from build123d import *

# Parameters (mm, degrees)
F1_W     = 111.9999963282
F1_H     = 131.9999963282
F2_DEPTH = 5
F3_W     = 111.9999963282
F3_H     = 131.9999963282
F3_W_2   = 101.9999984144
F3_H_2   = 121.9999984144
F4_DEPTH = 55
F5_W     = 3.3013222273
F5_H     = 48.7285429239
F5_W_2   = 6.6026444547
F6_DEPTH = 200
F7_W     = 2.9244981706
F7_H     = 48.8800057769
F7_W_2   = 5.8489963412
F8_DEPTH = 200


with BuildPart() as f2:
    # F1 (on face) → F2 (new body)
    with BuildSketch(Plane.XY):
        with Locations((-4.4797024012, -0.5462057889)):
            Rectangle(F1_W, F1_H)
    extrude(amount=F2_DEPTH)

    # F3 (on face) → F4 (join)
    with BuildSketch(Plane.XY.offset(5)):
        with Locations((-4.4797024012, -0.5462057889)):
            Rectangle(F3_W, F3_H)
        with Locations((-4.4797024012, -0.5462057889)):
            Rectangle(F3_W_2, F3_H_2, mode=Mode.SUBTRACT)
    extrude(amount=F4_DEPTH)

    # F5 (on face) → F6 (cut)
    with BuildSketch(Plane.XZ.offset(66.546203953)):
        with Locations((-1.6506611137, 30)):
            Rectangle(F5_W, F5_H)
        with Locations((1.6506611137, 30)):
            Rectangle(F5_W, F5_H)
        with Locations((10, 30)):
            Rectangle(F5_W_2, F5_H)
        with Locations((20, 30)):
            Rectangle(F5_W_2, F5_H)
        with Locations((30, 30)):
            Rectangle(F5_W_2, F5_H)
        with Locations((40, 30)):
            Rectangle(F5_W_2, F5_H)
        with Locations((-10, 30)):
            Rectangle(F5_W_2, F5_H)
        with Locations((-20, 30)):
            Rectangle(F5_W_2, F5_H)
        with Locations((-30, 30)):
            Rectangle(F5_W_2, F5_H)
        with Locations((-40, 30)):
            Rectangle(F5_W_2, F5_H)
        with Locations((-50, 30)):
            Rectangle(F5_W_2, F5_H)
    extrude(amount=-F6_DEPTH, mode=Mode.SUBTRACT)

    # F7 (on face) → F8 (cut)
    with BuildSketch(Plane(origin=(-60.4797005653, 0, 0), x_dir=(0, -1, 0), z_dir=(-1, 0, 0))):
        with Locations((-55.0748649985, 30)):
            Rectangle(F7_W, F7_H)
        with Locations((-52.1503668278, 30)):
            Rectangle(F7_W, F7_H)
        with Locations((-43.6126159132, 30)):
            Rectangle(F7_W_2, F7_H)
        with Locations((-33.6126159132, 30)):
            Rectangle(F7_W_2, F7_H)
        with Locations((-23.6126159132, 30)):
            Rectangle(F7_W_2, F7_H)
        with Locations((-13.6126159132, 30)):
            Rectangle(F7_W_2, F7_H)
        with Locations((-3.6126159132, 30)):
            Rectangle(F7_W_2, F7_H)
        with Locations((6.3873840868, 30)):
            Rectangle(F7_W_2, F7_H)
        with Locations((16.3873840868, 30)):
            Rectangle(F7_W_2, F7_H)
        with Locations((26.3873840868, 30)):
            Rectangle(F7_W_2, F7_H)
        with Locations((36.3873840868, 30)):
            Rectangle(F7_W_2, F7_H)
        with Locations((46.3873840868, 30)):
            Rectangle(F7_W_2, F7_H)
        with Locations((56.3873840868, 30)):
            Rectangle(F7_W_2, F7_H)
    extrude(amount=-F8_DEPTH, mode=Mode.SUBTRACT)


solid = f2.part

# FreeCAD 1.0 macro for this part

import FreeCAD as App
import Part
import Sketcher


def add_polygon(sketch, points):
    """Adds a closed chain of lines whose ends are joined by coincident constraints."""
    first, n = sketch.GeometryCount, len(points)
    for a, b in zip(points, points[1:] + points[:1]):
        sketch.addGeometry(Part.LineSegment(App.Vector(*a, 0), App.Vector(*b, 0)), False)
    for i in range(n):
        sketch.addConstraint(Sketcher.Constraint("Coincident", first + i, 2, first + (i + 1) % n, 1))

doc = App.newDocument("Part")
body = doc.addObject("PartDesign::Body", "Body")

# Sketch on XY plane
sketch1 = doc.addObject("Sketcher::SketchObject", "Sketch")
body.addObject(sketch1)
sketch1.AttachmentSupport = (doc.XY_Plane, [""])
sketch1.MapMode = "FlatFace"
add_polygon(sketch1, [(-60, 65), (-60, -67), (52, -67), (52, 65)])  # lines 0-3
sketch1.addConstraint([
    Sketcher.Constraint("Vertical", 0),
    Sketcher.Constraint("Horizontal", 1),
    Sketcher.Constraint("Vertical", 2),
    Sketcher.Constraint("Horizontal", 3),
    Sketcher.Constraint("DistanceX", 0, 2, -1, 1, 60.479701),
    Sketcher.Constraint("DistanceX", 1, 1, 1, 2, 111.999996),
    Sketcher.Constraint("DistanceY", 0, 2, 0, 1, 131.999996),
    Sketcher.Constraint("DistanceY", 0, 2, -1, 1, 66.546204),
])
pad1 = doc.addObject("PartDesign::Pad", "Pad")
body.addObject(pad1)
pad1.Profile = sketch1
pad1.Length = 5

# Sketch on XY plane
sketch2 = doc.addObject("Sketcher::SketchObject", "Sketch001")
body.addObject(sketch2)
sketch2.AttachmentSupport = (doc.XY_Plane, [""])
sketch2.MapMode = "FlatFace"
sketch2.AttachmentOffset = App.Placement(App.Vector(0, 0, 5), App.Rotation())
add_polygon(sketch2, [(-60, 65), (-60, -67), (52, -67), (52, 65)])  # lines 0-3
add_polygon(sketch2, [(47, -62), (-55, -62), (-55, 60), (47, 60)])  # lines 4-7
sketch2.addConstraint([
    Sketcher.Constraint("Vertical", 0),
    Sketcher.Constraint("Horizontal", 1),
    Sketcher.Constraint("Vertical", 2),
    Sketcher.Constraint("Horizontal", 3),
    Sketcher.Constraint("Horizontal", 4),
    Sketcher.Constraint("Vertical", 5),
    Sketcher.Constraint("Horizontal", 6),
    Sketcher.Constraint("Vertical", 7),
    Sketcher.Constraint("DistanceX", 4, 2, 4, 1, 101.999998),
    Sketcher.Constraint("DistanceY", 5, 1, 5, 2, 121.999998),
    Sketcher.Constraint("DistanceX", 0, 2, 4, 2, 4.999999),
    Sketcher.Constraint("DistanceY", 0, 2, 4, 2, 4.999999),
    Sketcher.Constraint("DistanceY", 5, 2, 3, 2, 4.999999),
    Sketcher.Constraint("DistanceX", 6, 2, 2, 2, 4.999999),
    Sketcher.Constraint("DistanceX", 0, 2, -1, 1, 60.479701),
    Sketcher.Constraint("DistanceY", 0, 2, -1, 1, 66.546204),
])
pad2 = doc.addObject("PartDesign::Pad", "Pad001")
body.addObject(pad2)
pad2.Profile = sketch2
pad2.Length = 55

# Sketch on XZ plane
sketch3 = doc.addObject("Sketcher::SketchObject", "Sketch002")
body.addObject(sketch3)
sketch3.AttachmentSupport = (doc.XZ_Plane, [""])
sketch3.MapMode = "FlatFace"
sketch3.AttachmentOffset = App.Placement(App.Vector(0, 0, 66.546204), App.Rotation())
add_polygon(sketch3, [(-3, 54), (-3, 6), (3, 6), (3, 54)])  # lines 0-3
add_polygon(sketch3, [(7, 54), (7, 6), (13, 6), (13, 54)])  # lines 4-7
add_polygon(sketch3, [(17, 54), (17, 6), (23, 6), (23, 54)])  # lines 8-11
add_polygon(sketch3, [(27, 54), (27, 6), (33, 6), (33, 54)])  # lines 12-15
add_polygon(sketch3, [(37, 54), (37, 6), (43, 6), (43, 54)])  # lines 16-19
add_polygon(sketch3, [(-13, 54), (-13, 6), (-7, 6), (-7, 54)])  # lines 20-23
add_polygon(sketch3, [(-23, 54), (-23, 6), (-17, 6), (-17, 54)])  # lines 24-27
add_polygon(sketch3, [(-33, 54), (-33, 6), (-27, 6), (-27, 54)])  # lines 28-31
add_polygon(sketch3, [(-43, 54), (-43, 6), (-37, 6), (-37, 54)])  # lines 32-35
add_polygon(sketch3, [(-53, 54), (-53, 6), (-47, 6), (-47, 54)])  # lines 36-39
sketch3.addConstraint([
    Sketcher.Constraint("Vertical", 0),
    Sketcher.Constraint("Horizontal", 1),
    Sketcher.Constraint("Vertical", 2),
    Sketcher.Constraint("Horizontal", 3),
    Sketcher.Constraint("Vertical", 4),
    Sketcher.Constraint("Horizontal", 5),
    Sketcher.Constraint("Vertical", 6),
    Sketcher.Constraint("Horizontal", 7),
    Sketcher.Constraint("Vertical", 8),
    Sketcher.Constraint("Horizontal", 9),
    Sketcher.Constraint("Vertical", 10),
    Sketcher.Constraint("Horizontal", 11),
    Sketcher.Constraint("Vertical", 12),
    Sketcher.Constraint("Horizontal", 13),
    Sketcher.Constraint("Vertical", 14),
    Sketcher.Constraint("Horizontal", 15),
    Sketcher.Constraint("Vertical", 16),
    Sketcher.Constraint("Horizontal", 17),
    Sketcher.Constraint("Vertical", 18),
    Sketcher.Constraint("Horizontal", 19),
    Sketcher.Constraint("Vertical", 20),
    Sketcher.Constraint("Horizontal", 21),
    Sketcher.Constraint("Vertical", 22),
    Sketcher.Constraint("Horizontal", 23),
    Sketcher.Constraint("Vertical", 24),
    Sketcher.Constraint("Horizontal", 25),
    Sketcher.Constraint("Vertical", 26),
    Sketcher.Constraint("Horizontal", 27),
    Sketcher.Constraint("Vertical", 28),
    Sketcher.Constraint("Horizontal", 29),
    Sketcher.Constraint("Vertical", 30),
    Sketcher.Constraint("Horizontal", 31),
    Sketcher.Constraint("Vertical", 32),
    Sketcher.Constraint("Horizontal", 33),
    Sketcher.Constraint("Vertical", 34),
    Sketcher.Constraint("Horizontal", 35),
    Sketcher.Constraint("Vertical", 36),
    Sketcher.Constraint("Horizontal", 37),
    Sketcher.Constraint("Vertical", 38),
    Sketcher.Constraint("Horizontal", 39),
    Sketcher.Constraint("Symmetric", 5, 2, 20, 2, -2),
    Sketcher.Constraint("Symmetric", 7, 2, 22, 2, -2),
    Sketcher.Constraint("Symmetric", 9, 2, 24, 2, -2),
    Sketcher.Constraint("Symmetric", 11, 2, 26, 2, -2),
    Sketcher.Constraint("Symmetric", 13, 2, 28, 2, -2),
    Sketcher.Constraint("Symmetric", 15, 2, 30, 2, -2),
    Sketcher.Constraint("Symmetric", 17, 2, 32, 2, -2),
    Sketcher.Constraint("Symmetric", 19, 2, 34, 2, -2),
    Sketcher.Constraint("Horizontal", 1, 2, 4, 2),
    Sketcher.Constraint("Horizontal", 3, 2, 6, 2),
    Sketcher.Constraint("Horizontal", 5, 2, 8, 2),
    Sketcher.Constraint("Horizontal", 7, 2, 10, 2),
    Sketcher.Constraint("Horizontal", 9, 2, 12, 2),
    Sketcher.Constraint("Horizontal", 11, 2, 14, 2),
    Sketcher.Constraint("Horizontal", 13, 2, 16, 2),
    Sketcher.Constraint("Horizontal", 15, 2, 18, 2),
    Sketcher.Constraint("Horizontal", 33, 2, 36, 2),
    Sketcher.Constraint("Horizontal", 35, 2, 38, 2),
    Sketcher.Constraint("Equal", 3, 5),
    Sketcher.Constraint("Equal", 7, 9),
    Sketcher.Constraint("Equal", 11, 13),
    Sketcher.Constraint("Equal", 15, 17),
    Sketcher.Constraint("Equal", 35, 37),
    Sketcher.Constraint("DistanceX", 0, 2, 4, 2, 10.0),
    Sketcher.Constraint("DistanceX", 4, 2, 8, 2, 10.0),
    Sketcher.Constraint("DistanceX", 8, 2, 12, 2, 10.0),
    Sketcher.Constraint("DistanceX", 12, 2, 16, 2, 10.0),
    Sketcher.Constraint("DistanceX", 20, 2, 0, 2, 10.0),
    Sketcher.Constraint("DistanceX", 36, 2, 32, 2, 10.0),
    Sketcher.Constraint("DistanceX", 1, 1, 1, 2, 6.602644),
    Sketcher.Constraint("DistanceY", 0, 2, 0, 1, 48.728543),
    Sketcher.Constraint("DistanceY", -1, 1, 0, 2, 5.635729),
])
pocket1 = doc.addObject("PartDesign::Pocket", "Pocket")
body.addObject(pocket1)
pocket1.Profile = sketch3
pocket1.Length = 200

# Sketch on YZ plane
sketch4 = doc.addObject("Sketcher::SketchObject", "Sketch003")
body.addObject(sketch4)
sketch4.AttachmentSupport = (doc.YZ_Plane, [""])
sketch4.MapMode = "FlatFace"
sketch4.AttachmentOffset = App.Placement(App.Vector(0, 0, -60.479701), App.Rotation())
add_polygon(sketch4, [(57, 54), (57, 6), (51, 6), (51, 54)])  # lines 0-3
add_polygon(sketch4, [(47, 54), (47, 6), (41, 6), (41, 54)])  # lines 4-7
add_polygon(sketch4, [(37, 54), (37, 6), (31, 6), (31, 54)])  # lines 8-11
add_polygon(sketch4, [(27, 54), (27, 6), (21, 6), (21, 54)])  # lines 12-15
add_polygon(sketch4, [(17, 54), (17, 6), (11, 6), (11, 54)])  # lines 16-19
add_polygon(sketch4, [(7, 54), (7, 6), (1, 6), (1, 54)])  # lines 20-23
add_polygon(sketch4, [(-3, 54), (-3, 6), (-9, 6), (-9, 54)])  # lines 24-27
add_polygon(sketch4, [(-13, 54), (-13, 6), (-19, 6), (-19, 54)])  # lines 28-31
add_polygon(sketch4, [(-23, 54), (-23, 6), (-29, 6), (-29, 54)])  # lines 32-35
add_polygon(sketch4, [(-33, 54), (-33, 6), (-39, 6), (-39, 54)])  # lines 36-39
add_polygon(sketch4, [(-43, 54), (-43, 6), (-49, 6), (-49, 54)])  # lines 40-43
add_polygon(sketch4, [(-53, 54), (-53, 6), (-59, 6), (-59, 54)])  # lines 44-47
sketch4.addConstraint([
    Sketcher.Constraint("Vertical", 0),
    Sketcher.Constraint("Horizontal", 1),
    Sketcher.Constraint("Vertical", 2),
    Sketcher.Constraint("Horizontal", 3),
    Sketcher.Constraint("Vertical", 4),
    Sketcher.Constraint("Horizontal", 5),
    Sketcher.Constraint("Vertical", 6),
    Sketcher.Constraint("Horizontal", 7),
    Sketcher.Constraint("Vertical", 8),
    Sketcher.Constraint("Horizontal", 9),
    Sketcher.Constraint("Vertical", 10),
    Sketcher.Constraint("Horizontal", 11),
    Sketcher.Constraint("Vertical", 12),
    Sketcher.Constraint("Horizontal", 13),
    Sketcher.Constraint("Vertical", 14),
    Sketcher.Constraint("Horizontal", 15),
    Sketcher.Constraint("Vertical", 16),
    Sketcher.Constraint("Horizontal", 17),
    Sketcher.Constraint("Vertical", 18),
    Sketcher.Constraint("Horizontal", 19),
    Sketcher.Constraint("Vertical", 20),
    Sketcher.Constraint("Horizontal", 21),
    Sketcher.Constraint("Vertical", 22),
    Sketcher.Constraint("Horizontal", 23),
    Sketcher.Constraint("Vertical", 24),
    Sketcher.Constraint("Horizontal", 25),
    Sketcher.Constraint("Vertical", 26),
    Sketcher.Constraint("Horizontal", 27),
    Sketcher.Constraint("Vertical", 28),
    Sketcher.Constraint("Horizontal", 29),
    Sketcher.Constraint("Vertical", 30),
    Sketcher.Constraint("Horizontal", 31),
    Sketcher.Constraint("Vertical", 32),
    Sketcher.Constraint("Horizontal", 33),
    Sketcher.Constraint("Vertical", 34),
    Sketcher.Constraint("Horizontal", 35),
    Sketcher.Constraint("Vertical", 36),
    Sketcher.Constraint("Horizontal", 37),
    Sketcher.Constraint("Vertical", 38),
    Sketcher.Constraint("Horizontal", 39),
    Sketcher.Constraint("Vertical", 40),
    Sketcher.Constraint("Horizontal", 41),
    Sketcher.Constraint("Vertical", 42),
    Sketcher.Constraint("Horizontal", 43),
    Sketcher.Constraint("Vertical", 44),
    Sketcher.Constraint("Horizontal", 45),
    Sketcher.Constraint("Vertical", 46),
    Sketcher.Constraint("Horizontal", 47),
    Sketcher.Constraint("Horizontal", 1, 2, 4, 2),
    Sketcher.Constraint("Horizontal", 3, 2, 6, 2),
    Sketcher.Constraint("Horizontal", 5, 2, 8, 2),
    Sketcher.Constraint("Horizontal", 7, 2, 10, 2),
    Sketcher.Constraint("Horizontal", 9, 2, 12, 2),
    Sketcher.Constraint("Horizontal", 11, 2, 14, 2),
    Sketcher.Constraint("Horizontal", 13, 2, 16, 2),
    Sketcher.Constraint("Horizontal", 15, 2, 18, 2),
    Sketcher.Constraint("Horizontal", 17, 2, 20, 2),
    Sketcher.Constraint("Horizontal", 19, 2, 22, 2),
    Sketcher.Constraint("Horizontal", 21, 2, 24, 2),
    Sketcher.Constraint("Horizontal", 23, 2, 26, 2),
    Sketcher.Constraint("Horizontal", 25, 2, 28, 2),
    Sketcher.Constraint("Horizontal", 27, 2, 30, 2),
    Sketcher.Constraint("Horizontal", 29, 2, 32, 2),
    Sketcher.Constraint("Horizontal", 31, 2, 34, 2),
    Sketcher.Constraint("Horizontal", 33, 2, 36, 2),
    Sketcher.Constraint("Horizontal", 35, 2, 38, 2),
    Sketcher.Constraint("Horizontal", 37, 2, 40, 2),
    Sketcher.Constraint("Horizontal", 39, 2, 42, 2),
    Sketcher.Constraint("Horizontal", 41, 2, 44, 2),
    Sketcher.Constraint("Horizontal", 43, 2, 46, 2),
    Sketcher.Constraint("Equal", 3, 5),
    Sketcher.Constraint("Equal", 7, 9),
    Sketcher.Constraint("Equal", 11, 13),
    Sketcher.Constraint("Equal", 15, 17),
    Sketcher.Constraint("Equal", 19, 21),
    Sketcher.Constraint("Equal", 23, 25),
    Sketcher.Constraint("Equal", 27, 29),
    Sketcher.Constraint("Equal", 31, 33),
    Sketcher.Constraint("Equal", 35, 37),
    Sketcher.Constraint("Equal", 39, 41),
    Sketcher.Constraint("Equal", 43, 45),
    Sketcher.Constraint("DistanceX", 4, 2, 0, 2, 10.0),
    Sketcher.Constraint("DistanceX", 8, 2, 4, 2, 10.0),
    Sketcher.Constraint("DistanceX", 12, 2, 8, 2, 10.0),
    Sketcher.Constraint("DistanceX", 16, 2, 12, 2, 10.0),
    Sketcher.Constraint("DistanceX", 20, 2, 16, 2, 10.0),
    Sketcher.Constraint("DistanceX", 24, 2, 20, 2, 10.0),
    Sketcher.Constraint("DistanceX", 28, 2, 24, 2, 10.0),
    Sketcher.Constraint("DistanceX", 32, 2, 28, 2, 10.0),
    Sketcher.Constraint("DistanceX", 36, 2, 32, 2, 10.0),
    Sketcher.Constraint("DistanceX", 40, 2, 36, 2, 10.0),
    Sketcher.Constraint("DistanceX", 44, 2, 40, 2, 10.0),
    Sketcher.Constraint("DistanceX", 1, 2, 1, 1, 5.848996),
    Sketcher.Constraint("DistanceY", 0, 2, 0, 1, 48.880006),
    Sketcher.Constraint("DistanceX", -1, 1, 0, 2, 56.537114),
    Sketcher.Constraint("DistanceY", -1, 1, 0, 2, 5.559997),
])
pocket2 = doc.addObject("PartDesign::Pocket", "Pocket001")
body.addObject(pocket2)
pocket2.Profile = sketch4
pocket2.Length = 200
pocket2.Reversed = True

doc.recompute()
